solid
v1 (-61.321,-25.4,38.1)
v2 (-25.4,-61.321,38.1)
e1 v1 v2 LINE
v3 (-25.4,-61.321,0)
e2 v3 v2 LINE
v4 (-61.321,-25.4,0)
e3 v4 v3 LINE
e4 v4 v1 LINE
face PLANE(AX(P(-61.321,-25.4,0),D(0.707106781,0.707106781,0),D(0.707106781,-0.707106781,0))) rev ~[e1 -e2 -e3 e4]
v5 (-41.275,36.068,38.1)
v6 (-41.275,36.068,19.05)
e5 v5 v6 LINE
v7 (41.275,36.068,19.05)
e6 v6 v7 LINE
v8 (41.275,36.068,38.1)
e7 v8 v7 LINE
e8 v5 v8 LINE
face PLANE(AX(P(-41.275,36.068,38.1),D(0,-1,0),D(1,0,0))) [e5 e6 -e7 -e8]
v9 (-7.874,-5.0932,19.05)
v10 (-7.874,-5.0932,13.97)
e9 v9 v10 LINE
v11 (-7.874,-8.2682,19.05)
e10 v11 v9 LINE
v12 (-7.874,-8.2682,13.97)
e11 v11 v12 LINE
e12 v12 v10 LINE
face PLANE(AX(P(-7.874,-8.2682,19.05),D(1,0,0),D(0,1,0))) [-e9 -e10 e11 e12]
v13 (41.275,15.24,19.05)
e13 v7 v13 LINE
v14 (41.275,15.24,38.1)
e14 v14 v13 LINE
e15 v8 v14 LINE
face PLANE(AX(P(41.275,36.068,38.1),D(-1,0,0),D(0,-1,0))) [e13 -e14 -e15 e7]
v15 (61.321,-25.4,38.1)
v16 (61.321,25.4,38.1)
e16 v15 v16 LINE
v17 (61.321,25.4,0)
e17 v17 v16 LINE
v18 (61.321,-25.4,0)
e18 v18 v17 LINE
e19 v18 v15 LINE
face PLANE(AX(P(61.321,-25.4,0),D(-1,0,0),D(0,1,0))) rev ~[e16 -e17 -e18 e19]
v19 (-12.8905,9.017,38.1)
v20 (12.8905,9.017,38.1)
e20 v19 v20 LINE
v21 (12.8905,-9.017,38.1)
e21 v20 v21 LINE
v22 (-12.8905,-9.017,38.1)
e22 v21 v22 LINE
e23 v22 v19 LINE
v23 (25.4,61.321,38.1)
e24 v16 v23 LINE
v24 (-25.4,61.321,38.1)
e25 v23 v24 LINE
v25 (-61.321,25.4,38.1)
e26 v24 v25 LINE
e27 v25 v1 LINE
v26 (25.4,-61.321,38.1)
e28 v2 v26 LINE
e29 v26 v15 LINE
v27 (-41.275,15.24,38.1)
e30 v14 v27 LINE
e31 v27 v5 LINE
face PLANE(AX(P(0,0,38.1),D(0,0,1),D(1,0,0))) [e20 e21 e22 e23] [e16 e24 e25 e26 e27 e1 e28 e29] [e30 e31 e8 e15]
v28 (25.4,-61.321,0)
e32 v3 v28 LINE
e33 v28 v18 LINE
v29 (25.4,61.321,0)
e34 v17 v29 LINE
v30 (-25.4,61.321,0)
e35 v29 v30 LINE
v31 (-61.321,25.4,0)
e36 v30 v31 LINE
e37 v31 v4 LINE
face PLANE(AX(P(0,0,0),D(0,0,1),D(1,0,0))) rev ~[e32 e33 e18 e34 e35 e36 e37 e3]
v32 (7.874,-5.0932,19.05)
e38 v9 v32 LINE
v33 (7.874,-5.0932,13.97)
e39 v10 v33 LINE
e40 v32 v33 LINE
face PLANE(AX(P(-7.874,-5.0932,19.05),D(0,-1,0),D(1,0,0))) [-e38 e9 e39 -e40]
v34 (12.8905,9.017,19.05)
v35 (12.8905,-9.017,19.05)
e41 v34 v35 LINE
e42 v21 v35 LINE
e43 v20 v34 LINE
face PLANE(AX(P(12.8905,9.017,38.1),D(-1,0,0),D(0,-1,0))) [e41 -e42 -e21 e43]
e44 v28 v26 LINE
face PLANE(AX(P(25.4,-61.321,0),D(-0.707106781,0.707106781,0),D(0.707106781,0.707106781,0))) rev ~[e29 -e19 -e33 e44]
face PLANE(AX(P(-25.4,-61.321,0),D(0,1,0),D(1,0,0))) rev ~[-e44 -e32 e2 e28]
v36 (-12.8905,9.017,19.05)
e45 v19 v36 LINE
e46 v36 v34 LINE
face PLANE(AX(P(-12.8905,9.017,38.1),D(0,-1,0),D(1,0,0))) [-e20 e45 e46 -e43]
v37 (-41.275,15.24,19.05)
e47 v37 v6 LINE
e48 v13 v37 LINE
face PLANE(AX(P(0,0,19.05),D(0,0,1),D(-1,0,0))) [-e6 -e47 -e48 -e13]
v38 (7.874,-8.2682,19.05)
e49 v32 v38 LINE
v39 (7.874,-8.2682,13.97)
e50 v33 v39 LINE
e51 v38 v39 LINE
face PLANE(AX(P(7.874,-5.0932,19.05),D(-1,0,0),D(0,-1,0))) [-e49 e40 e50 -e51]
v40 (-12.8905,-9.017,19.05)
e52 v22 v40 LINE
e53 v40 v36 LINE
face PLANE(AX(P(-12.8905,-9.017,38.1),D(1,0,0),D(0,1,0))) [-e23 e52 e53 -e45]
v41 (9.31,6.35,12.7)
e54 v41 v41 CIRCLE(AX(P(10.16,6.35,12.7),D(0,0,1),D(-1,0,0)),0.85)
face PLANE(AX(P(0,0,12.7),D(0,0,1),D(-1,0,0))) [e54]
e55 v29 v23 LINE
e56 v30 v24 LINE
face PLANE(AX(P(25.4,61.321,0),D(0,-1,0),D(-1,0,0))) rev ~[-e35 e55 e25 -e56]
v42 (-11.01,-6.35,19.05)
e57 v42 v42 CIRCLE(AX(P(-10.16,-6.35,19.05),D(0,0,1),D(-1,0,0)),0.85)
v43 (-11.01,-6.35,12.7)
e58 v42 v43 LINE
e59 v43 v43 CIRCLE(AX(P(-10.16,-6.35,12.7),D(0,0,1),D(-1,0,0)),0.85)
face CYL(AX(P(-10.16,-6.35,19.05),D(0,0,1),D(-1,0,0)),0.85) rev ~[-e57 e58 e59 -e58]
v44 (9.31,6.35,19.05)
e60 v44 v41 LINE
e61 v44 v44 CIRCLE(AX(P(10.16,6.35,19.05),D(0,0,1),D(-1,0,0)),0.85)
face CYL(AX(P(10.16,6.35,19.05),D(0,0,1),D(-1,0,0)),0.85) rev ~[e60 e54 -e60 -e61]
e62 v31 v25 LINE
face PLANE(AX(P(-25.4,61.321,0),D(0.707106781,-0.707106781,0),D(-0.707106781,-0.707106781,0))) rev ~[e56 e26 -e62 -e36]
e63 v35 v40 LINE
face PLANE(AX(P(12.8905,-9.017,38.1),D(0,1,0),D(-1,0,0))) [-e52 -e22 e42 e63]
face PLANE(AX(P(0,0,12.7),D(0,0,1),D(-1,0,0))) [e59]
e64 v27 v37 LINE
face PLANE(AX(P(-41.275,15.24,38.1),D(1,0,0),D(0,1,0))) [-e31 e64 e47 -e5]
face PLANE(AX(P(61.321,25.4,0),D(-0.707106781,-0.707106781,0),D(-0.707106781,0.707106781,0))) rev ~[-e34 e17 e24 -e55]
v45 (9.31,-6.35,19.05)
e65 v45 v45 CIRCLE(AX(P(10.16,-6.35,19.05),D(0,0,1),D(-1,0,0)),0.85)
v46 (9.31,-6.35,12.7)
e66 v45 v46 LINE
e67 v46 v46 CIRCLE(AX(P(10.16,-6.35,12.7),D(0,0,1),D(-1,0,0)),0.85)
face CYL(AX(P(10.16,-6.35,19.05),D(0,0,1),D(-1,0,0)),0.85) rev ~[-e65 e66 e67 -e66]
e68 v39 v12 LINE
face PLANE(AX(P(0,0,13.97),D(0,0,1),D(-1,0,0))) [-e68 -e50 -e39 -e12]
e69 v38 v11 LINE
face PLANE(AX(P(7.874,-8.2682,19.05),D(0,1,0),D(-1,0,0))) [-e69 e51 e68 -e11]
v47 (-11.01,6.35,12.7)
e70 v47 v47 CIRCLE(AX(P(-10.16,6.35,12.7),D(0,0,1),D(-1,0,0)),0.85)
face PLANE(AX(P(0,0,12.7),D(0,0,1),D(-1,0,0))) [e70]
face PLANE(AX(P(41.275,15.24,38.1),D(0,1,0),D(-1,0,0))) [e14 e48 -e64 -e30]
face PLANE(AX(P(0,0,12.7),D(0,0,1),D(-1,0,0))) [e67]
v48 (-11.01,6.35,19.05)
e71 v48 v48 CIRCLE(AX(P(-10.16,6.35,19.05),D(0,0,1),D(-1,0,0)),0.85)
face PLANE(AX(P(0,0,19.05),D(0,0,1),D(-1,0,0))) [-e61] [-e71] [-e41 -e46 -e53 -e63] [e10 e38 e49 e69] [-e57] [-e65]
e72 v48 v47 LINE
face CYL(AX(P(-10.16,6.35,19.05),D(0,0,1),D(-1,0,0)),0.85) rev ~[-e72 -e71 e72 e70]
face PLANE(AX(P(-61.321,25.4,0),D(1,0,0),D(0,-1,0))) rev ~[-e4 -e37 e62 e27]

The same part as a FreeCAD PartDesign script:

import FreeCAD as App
import Part
import Sketcher
Q = App.Units.Quantity


def add_polygon(sketch, points):
    """Adds a closed chain of lines whose ends are joined by coincident constraints."""
    first, n = sketch.GeometryCount, len(points)
    for a, b in zip(points, points[1:] + points[:1]):
        sketch.addGeometry(Part.LineSegment(App.Vector(*a, 0), App.Vector(*b, 0)), False)
    for i in range(n):
        sketch.addConstraint(Sketcher.Constraint("Coincident", first + i, 2, first + (i + 1) % n, 1))

doc = App.newDocument("Part")
body = doc.addObject("PartDesign::Body", "Body")

# Sketch on XY plane
sketch1 = body.newObject("Sketcher::SketchObject", "Sketch")
sketch1.AttachmentSupport = (doc.getObject("XY_Plane"), [""])
sketch1.MapMode = "FlatFace"
add_polygon(sketch1, [(61, -25), (61, 25), (25, 61), (-25, 61), (-61, 25), (-61, -25), (-25, -61), (25, -61)])  # lines 0-7
sketch1.addConstraint([
    Sketcher.Constraint("Vertical", 0),
    Sketcher.Constraint("Horizontal", 2),
    Sketcher.Constraint("Vertical", 4),
    Sketcher.Constraint("Horizontal", 6),
    Sketcher.Constraint("Symmetric", 0, 2, 4, 2, -1, 1),
    Sketcher.Constraint("Symmetric", 1, 2, 5, 2, -1, 1),
    Sketcher.Constraint("Perpendicular", 1, 3),
    Sketcher.Constraint("Perpendicular", 5, 7),
    Sketcher.Constraint("Horizontal", 0, 2, 3, 2),
    Sketcher.Constraint("Horizontal", 4, 2, 7, 2),
    Sketcher.Constraint("Vertical", 2, 2, 5, 2),
    Sketcher.Constraint("Equal", 6, 0),
    Sketcher.Constraint("DistanceX", 2, 2, 2, 1, Q("2 in")),
    Sketcher.Constraint("Distance", 1, Q("2 in")),
])
pad1 = body.newObject("PartDesign::Pad", "Pad")
pad1.Profile = sketch1
pad1.Length = Q("1.5 in")

# Sketch on XY plane
sketch2 = body.newObject("Sketcher::SketchObject", "Sketch001")
sketch2.AttachmentSupport = (doc.getObject("XY_Plane"), [""])
sketch2.MapMode = "FlatFace"
sketch2.AttachmentOffset = App.Placement(App.Vector(0, 0, 1.5 * 25.4), App.Rotation())
add_polygon(sketch2, [(-13, -9), (13, -9), (13, 9), (-13, 9)])  # lines 0-3
sketch2.addConstraint([
    Sketcher.Constraint("Horizontal", 0),
    Sketcher.Constraint("Vertical", 1),
    Sketcher.Constraint("Horizontal", 2),
    Sketcher.Constraint("Vertical", 3),
    Sketcher.Constraint("Symmetric", 0, 2, 2, 2, -1, 1),
    Sketcher.Constraint("DistanceY", 1, 1, 1, 2, Q("0.71 in")),
    Sketcher.Constraint("DistanceX", 0, 1, 0, 2, Q("1.015 in")),
])
pocket1 = body.newObject("PartDesign::Pocket", "Pocket")
pocket1.Profile = sketch2
pocket1.Length = Q("0.75 in")

# Sketch on XY plane
sketch3 = body.newObject("Sketcher::SketchObject", "Sketch002")
sketch3.AttachmentSupport = (doc.getObject("XY_Plane"), [""])
sketch3.MapMode = "FlatFace"
sketch3.AttachmentOffset = App.Placement(App.Vector(0, 0, 0.75 * 25.4), App.Rotation())
sketch3.addGeometry(Part.Circle(App.Vector(-10.2, 6.3, 0), App.Vector(0, 0, 1), 0.8), False)
sketch3.addConstraint([
    Sketcher.Constraint("DistanceX", 0, 3, -1, 1, Q("0.4 in")),
    Sketcher.Constraint("Diameter", 0, Q("1.7 mm")),
    Sketcher.Constraint("DistanceY", -1, 1, 0, 3, Q("0.25 in")),
])
pocket2 = body.newObject("PartDesign::Pocket", "Pocket001")
pocket2.Profile = sketch3
pocket2.Length = Q("0.25 in")

# Sketch on XY plane
sketch4 = body.newObject("Sketcher::SketchObject", "Sketch003")
sketch4.AttachmentSupport = (doc.getObject("XY_Plane"), [""])
sketch4.MapMode = "FlatFace"
sketch4.AttachmentOffset = App.Placement(App.Vector(0, 0, 0.75 * 25.4), App.Rotation())
sketch4.addGeometry([
    Part.Circle(App.Vector(10.2, 6.3, 0), App.Vector(0, 0, 1), 0.8),
    Part.Circle(App.Vector(-10.2, -6.3, 0), App.Vector(0, 0, 1), 0.8),
    Part.Circle(App.Vector(10.2, -6.3, 0), App.Vector(0, 0, 1), 0.8),
], False)
sketch4.addConstraint([
    Sketcher.Constraint("Equal", 0, 1),
    Sketcher.Constraint("Equal", 1, 2),
    Sketcher.Constraint("Symmetric", 0, 3, 1, 3, -1, 1),
    Sketcher.Constraint("Symmetric", 1, 3, 2, 3, -2),
    Sketcher.Constraint("DistanceX", -1, 1, 0, 3, Q("0.4 in")),
    Sketcher.Constraint("DistanceY", 1, 3, 0, 3, Q("0.5 in")),
    Sketcher.Constraint("Diameter", 0, Q("1.7 mm")),
])
pocket3 = body.newObject("PartDesign::Pocket", "Pocket002")
pocket3.Profile = sketch4
pocket3.Length = Q("0.25 in")

# Sketch on XY plane
sketch5 = body.newObject("Sketcher::SketchObject", "Sketch004")
sketch5.AttachmentSupport = (doc.getObject("XY_Plane"), [""])
sketch5.MapMode = "FlatFace"
sketch5.AttachmentOffset = App.Placement(App.Vector(0, 0, 0.75 * 25.4), App.Rotation())
add_polygon(sketch5, [(7.9, -5.1), (-7.9, -5.1), (-7.9, -8.3), (7.9, -8.3)])  # lines 0-3
sketch5.addConstraint([
    Sketcher.Constraint("Horizontal", 0),
    Sketcher.Constraint("Vertical", 1),
    Sketcher.Constraint("Horizontal", 2),
    Sketcher.Constraint("Vertical", 3),
    Sketcher.Constraint("DistanceX", 0, 2, 0, 1, Q("0.62 in")),
    Sketcher.Constraint("DistanceY", 1, 2, 1, 1, Q("0.125 in")),
    Sketcher.Constraint("DistanceX", 0, 2, -1, 1, Q("0.31 in")),
    Sketcher.Constraint("DistanceY", 0, 2, -1, 1, Q("5.0932 mm")),
])
pocket4 = body.newObject("PartDesign::Pocket", "Pocket003")
pocket4.Profile = sketch5
pocket4.Length = Q("0.2 in")

# Sketch on XY plane
sketch6 = body.newObject("Sketcher::SketchObject", "Sketch005")
sketch6.AttachmentSupport = (doc.getObject("XY_Plane"), [""])
sketch6.MapMode = "FlatFace"
sketch6.AttachmentOffset = App.Placement(App.Vector(0, 0, 1.5 * 25.4), App.Rotation())
add_polygon(sketch6, [(41, 36), (-41, 36), (-41, 15), (41, 15)])  # lines 0-3
sketch6.addConstraint([
    Sketcher.Constraint("Horizontal", 0),
    Sketcher.Constraint("Vertical", 1),
    Sketcher.Constraint("Horizontal", 2),
    Sketcher.Constraint("Vertical", 3),
    Sketcher.Constraint("DistanceX", 0, 2, 0, 1, Q("3.25 in")),
    Sketcher.Constraint("DistanceY", 1, 2, 1, 1, Q("0.82 in")),
    Sketcher.Constraint("DistanceY", -1, 1, 1, 2, Q("0.6 in")),
    Sketcher.Constraint("DistanceX", 0, 2, -1, 1, Q("1.625 in")),
])
pocket5 = body.newObject("PartDesign::Pocket", "Pocket004")
pocket5.Profile = sketch6
pocket5.Length = Q("0.75 in")

doc.recompute()
